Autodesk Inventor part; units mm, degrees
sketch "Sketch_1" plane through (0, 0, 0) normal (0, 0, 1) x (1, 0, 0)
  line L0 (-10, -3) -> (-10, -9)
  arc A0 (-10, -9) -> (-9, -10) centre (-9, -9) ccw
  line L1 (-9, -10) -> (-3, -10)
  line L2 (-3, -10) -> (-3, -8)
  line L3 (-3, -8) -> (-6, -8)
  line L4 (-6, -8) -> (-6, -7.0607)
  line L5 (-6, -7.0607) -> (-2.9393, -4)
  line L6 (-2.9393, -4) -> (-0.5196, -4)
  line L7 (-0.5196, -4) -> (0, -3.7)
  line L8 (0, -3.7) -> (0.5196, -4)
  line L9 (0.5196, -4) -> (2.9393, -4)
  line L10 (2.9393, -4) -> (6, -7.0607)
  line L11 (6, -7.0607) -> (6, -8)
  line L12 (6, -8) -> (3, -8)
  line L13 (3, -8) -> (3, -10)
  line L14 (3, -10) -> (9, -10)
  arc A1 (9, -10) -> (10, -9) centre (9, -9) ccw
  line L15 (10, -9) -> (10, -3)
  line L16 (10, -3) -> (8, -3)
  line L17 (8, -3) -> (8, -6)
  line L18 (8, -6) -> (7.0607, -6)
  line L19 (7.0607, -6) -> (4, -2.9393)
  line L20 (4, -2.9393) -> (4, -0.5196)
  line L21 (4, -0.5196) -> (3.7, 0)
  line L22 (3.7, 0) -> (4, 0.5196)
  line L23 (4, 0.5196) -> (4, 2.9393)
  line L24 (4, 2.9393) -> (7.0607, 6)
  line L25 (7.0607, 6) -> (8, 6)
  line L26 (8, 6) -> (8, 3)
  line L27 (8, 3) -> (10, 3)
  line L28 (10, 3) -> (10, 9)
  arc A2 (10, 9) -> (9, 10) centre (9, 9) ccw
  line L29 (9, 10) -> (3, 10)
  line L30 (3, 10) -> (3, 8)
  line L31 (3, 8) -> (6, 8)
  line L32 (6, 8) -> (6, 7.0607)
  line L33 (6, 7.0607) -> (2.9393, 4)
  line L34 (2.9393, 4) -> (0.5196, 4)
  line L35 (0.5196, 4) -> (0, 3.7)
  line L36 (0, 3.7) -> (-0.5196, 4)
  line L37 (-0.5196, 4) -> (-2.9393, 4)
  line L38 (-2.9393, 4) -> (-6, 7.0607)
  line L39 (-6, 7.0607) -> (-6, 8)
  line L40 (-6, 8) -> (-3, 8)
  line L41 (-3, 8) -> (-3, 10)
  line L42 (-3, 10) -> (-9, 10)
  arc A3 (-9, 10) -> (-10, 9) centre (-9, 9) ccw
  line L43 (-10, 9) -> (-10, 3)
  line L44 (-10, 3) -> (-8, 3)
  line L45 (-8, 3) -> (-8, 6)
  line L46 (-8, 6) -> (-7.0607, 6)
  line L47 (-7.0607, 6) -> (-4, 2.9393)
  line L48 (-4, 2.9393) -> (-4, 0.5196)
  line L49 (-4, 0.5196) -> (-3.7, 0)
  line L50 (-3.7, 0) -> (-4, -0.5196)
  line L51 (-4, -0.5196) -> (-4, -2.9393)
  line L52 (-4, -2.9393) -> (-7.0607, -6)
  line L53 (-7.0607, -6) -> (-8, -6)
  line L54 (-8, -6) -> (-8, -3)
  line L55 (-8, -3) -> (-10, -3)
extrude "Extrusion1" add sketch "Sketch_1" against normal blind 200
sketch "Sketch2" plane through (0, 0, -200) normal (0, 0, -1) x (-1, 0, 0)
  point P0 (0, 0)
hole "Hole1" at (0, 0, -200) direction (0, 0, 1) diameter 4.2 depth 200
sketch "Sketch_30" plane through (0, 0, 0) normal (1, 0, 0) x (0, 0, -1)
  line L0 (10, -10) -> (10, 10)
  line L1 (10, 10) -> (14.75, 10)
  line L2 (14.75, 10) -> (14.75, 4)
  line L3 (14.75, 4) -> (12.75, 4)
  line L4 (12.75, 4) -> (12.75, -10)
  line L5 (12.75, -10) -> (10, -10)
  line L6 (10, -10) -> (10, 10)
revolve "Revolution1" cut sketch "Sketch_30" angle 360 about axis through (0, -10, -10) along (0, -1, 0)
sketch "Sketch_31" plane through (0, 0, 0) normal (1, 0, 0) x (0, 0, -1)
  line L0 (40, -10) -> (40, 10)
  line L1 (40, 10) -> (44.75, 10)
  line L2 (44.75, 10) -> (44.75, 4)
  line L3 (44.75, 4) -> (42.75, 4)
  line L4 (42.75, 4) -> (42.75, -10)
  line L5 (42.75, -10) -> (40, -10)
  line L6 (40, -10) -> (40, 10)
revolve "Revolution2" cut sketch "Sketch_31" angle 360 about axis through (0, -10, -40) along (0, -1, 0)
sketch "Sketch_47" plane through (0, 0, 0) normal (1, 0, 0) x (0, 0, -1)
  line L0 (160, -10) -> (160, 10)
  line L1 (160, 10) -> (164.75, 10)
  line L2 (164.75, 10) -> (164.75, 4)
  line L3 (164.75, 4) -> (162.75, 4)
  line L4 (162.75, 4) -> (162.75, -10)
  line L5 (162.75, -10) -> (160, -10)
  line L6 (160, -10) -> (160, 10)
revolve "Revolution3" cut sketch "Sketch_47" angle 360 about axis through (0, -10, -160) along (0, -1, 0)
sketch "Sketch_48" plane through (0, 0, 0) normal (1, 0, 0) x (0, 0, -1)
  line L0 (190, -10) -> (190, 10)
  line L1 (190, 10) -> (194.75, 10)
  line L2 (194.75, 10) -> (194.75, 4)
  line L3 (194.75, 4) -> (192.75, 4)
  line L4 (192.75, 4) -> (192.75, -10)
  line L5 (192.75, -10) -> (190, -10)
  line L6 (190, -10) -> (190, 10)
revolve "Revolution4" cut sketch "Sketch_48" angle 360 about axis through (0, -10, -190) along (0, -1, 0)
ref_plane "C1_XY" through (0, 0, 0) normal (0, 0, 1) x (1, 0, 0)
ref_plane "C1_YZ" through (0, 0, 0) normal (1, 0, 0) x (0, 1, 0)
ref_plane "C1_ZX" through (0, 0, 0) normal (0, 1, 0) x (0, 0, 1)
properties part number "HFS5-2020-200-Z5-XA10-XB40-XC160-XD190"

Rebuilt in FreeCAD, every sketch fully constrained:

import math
import FreeCAD as App
import Part
import Sketcher
Q = App.Units.Quantity

doc = App.newDocument("Part")
body = doc.addObject("PartDesign::Body", "Body")

# Sketch on XY plane
sketch1 = body.newObject("Sketcher::SketchObject", "Sketch")
sketch1.AttachmentSupport = (doc.getObject("XY_Plane"), [""])
sketch1.MapMode = "FlatFace"
sketch1.addGeometry(Part.LineSegment(App.Vector(-8, -3, 0), App.Vector(-10, -3, 0)), False)
sketch1.addGeometry(Part.LineSegment(App.Vector(-10, -3, 0), App.Vector(-10, -9, 0)), False)
sketch1.addGeometry(Part.ArcOfCircle(Part.Circle(App.Vector(-9, -9, 0), App.Vector(0, 0, 1), 1), math.radians(180), math.radians(270)), False)
sketch1.addGeometry(Part.LineSegment(App.Vector(-9, -10, 0), App.Vector(-3, -10, 0)), False)
sketch1.addGeometry(Part.LineSegment(App.Vector(-3, -10, 0), App.Vector(-3, -8, 0)), False)
sketch1.addGeometry(Part.LineSegment(App.Vector(-3, -8, 0), App.Vector(-6, -8, 0)), False)
sketch1.addGeometry(Part.LineSegment(App.Vector(-6, -8, 0), App.Vector(-6, -7.1, 0)), False)
sketch1.addGeometry(Part.LineSegment(App.Vector(-6, -7.1, 0), App.Vector(-2.9, -4, 0)), False)
sketch1.addGeometry(Part.LineSegment(App.Vector(-2.9, -4, 0), App.Vector(-0.5, -4, 0)), False)
sketch1.addGeometry(Part.LineSegment(App.Vector(-0.5, -4, 0), App.Vector(0, -3.7, 0)), False)
sketch1.addGeometry(Part.LineSegment(App.Vector(0, -3.7, 0), App.Vector(0.5, -4, 0)), False)
sketch1.addGeometry(Part.LineSegment(App.Vector(0.5, -4, 0), App.Vector(2.9, -4, 0)), False)
sketch1.addGeometry(Part.LineSegment(App.Vector(2.9, -4, 0), App.Vector(6, -7.1, 0)), False)
sketch1.addGeometry(Part.LineSegment(App.Vector(6, -7.1, 0), App.Vector(6, -8, 0)), False)
sketch1.addGeometry(Part.LineSegment(App.Vector(6, -8, 0), App.Vector(3, -8, 0)), False)
sketch1.addGeometry(Part.LineSegment(App.Vector(3, -8, 0), App.Vector(3, -10, 0)), False)
sketch1.addGeometry(Part.LineSegment(App.Vector(3, -10, 0), App.Vector(9, -10, 0)), False)
sketch1.addGeometry(Part.ArcOfCircle(Part.Circle(App.Vector(9, -9, 0), App.Vector(0, 0, 1), 1), math.radians(-90), math.radians(0)), False)
sketch1.addGeometry(Part.LineSegment(App.Vector(10, -9, 0), App.Vector(10, -3, 0)), False)
sketch1.addGeometry(Part.LineSegment(App.Vector(10, -3, 0), App.Vector(8, -3, 0)), False)
sketch1.addGeometry(Part.LineSegment(App.Vector(8, -3, 0), App.Vector(8, -6, 0)), False)
sketch1.addGeometry(Part.LineSegment(App.Vector(8, -6, 0), App.Vector(7.1, -6, 0)), False)
sketch1.addGeometry(Part.LineSegment(App.Vector(7.1, -6, 0), App.Vector(4, -2.9, 0)), False)
sketch1.addGeometry(Part.LineSegment(App.Vector(4, -2.9, 0), App.Vector(4, -0.5, 0)), False)
sketch1.addGeometry(Part.LineSegment(App.Vector(4, -0.5, 0), App.Vector(3.7, 0, 0)), False)
sketch1.addGeometry(Part.LineSegment(App.Vector(3.7, 0, 0), App.Vector(4, 0.5, 0)), False)
sketch1.addGeometry(Part.LineSegment(App.Vector(4, 0.5, 0), App.Vector(4, 2.9, 0)), False)
sketch1.addGeometry(Part.LineSegment(App.Vector(4, 2.9, 0), App.Vector(7.1, 6, 0)), False)
sketch1.addGeometry(Part.LineSegment(App.Vector(7.1, 6, 0), App.Vector(8, 6, 0)), False)
sketch1.addGeometry(Part.LineSegment(App.Vector(8, 6, 0), App.Vector(8, 3, 0)), False)
sketch1.addGeometry(Part.LineSegment(App.Vector(8, 3, 0), App.Vector(10, 3, 0)), False)
sketch1.addGeometry(Part.LineSegment(App.Vector(10, 3, 0), App.Vector(10, 9, 0)), False)
sketch1.addGeometry(Part.ArcOfCircle(Part.Circle(App.Vector(9, 9, 0), App.Vector(0, 0, 1), 1), math.radians(0), math.radians(90)), False)
sketch1.addGeometry(Part.LineSegment(App.Vector(9, 10, 0), App.Vector(3, 10, 0)), False)
sketch1.addGeometry(Part.LineSegment(App.Vector(3, 10, 0), App.Vector(3, 8, 0)), False)
sketch1.addGeometry(Part.LineSegment(App.Vector(3, 8, 0), App.Vector(6, 8, 0)), False)
sketch1.addGeometry(Part.LineSegment(App.Vector(6, 8, 0), App.Vector(6, 7.1, 0)), False)
sketch1.addGeometry(Part.LineSegment(App.Vector(6, 7.1, 0), App.Vector(2.9, 4, 0)), False)
sketch1.addGeometry(Part.LineSegment(App.Vector(2.9, 4, 0), App.Vector(0.5, 4, 0)), False)
sketch1.addGeometry(Part.LineSegment(App.Vector(0.5, 4, 0), App.Vector(0, 3.7, 0)), False)
sketch1.addGeometry(Part.LineSegment(App.Vector(0, 3.7, 0), App.Vector(-0.5, 4, 0)), False)
sketch1.addGeometry(Part.LineSegment(App.Vector(-0.5, 4, 0), App.Vector(-2.9, 4, 0)), False)
sketch1.addGeometry(Part.LineSegment(App.Vector(-2.9, 4, 0), App.Vector(-6, 7.1, 0)), False)
sketch1.addGeometry(Part.LineSegment(App.Vector(-6, 7.1, 0), App.Vector(-6, 8, 0)), False)
sketch1.addGeometry(Part.LineSegment(App.Vector(-6, 8, 0), App.Vector(-3, 8, 0)), False)
sketch1.addGeometry(Part.LineSegment(App.Vector(-3, 8, 0), App.Vector(-3, 10, 0)), False)
sketch1.addGeometry(Part.LineSegment(App.Vector(-3, 10, 0), App.Vector(-9, 10, 0)), False)
sketch1.addGeometry(Part.ArcOfCircle(Part.Circle(App.Vector(-9, 9, 0), App.Vector(0, 0, 1), 1), math.radians(90), math.radians(180)), False)
sketch1.addGeometry(Part.LineSegment(App.Vector(-10, 9, 0), App.Vector(-10, 3, 0)), False)
sketch1.addGeometry(Part.LineSegment(App.Vector(-10, 3, 0), App.Vector(-8, 3, 0)), False)
sketch1.addGeometry(Part.LineSegment(App.Vector(-8, 3, 0), App.Vector(-8, 6, 0)), False)
sketch1.addGeometry(Part.LineSegment(App.Vector(-8, 6, 0), App.Vector(-7.1, 6, 0)), False)
sketch1.addGeometry(Part.LineSegment(App.Vector(-7.1, 6, 0), App.Vector(-4, 2.9, 0)), False)
sketch1.addGeometry(Part.LineSegment(App.Vector(-4, 2.9, 0), App.Vector(-4, 0.5, 0)), False)
sketch1.addGeometry(Part.LineSegment(App.Vector(-4, 0.5, 0), App.Vector(-3.7, 0, 0)), False)
sketch1.addGeometry(Part.LineSegment(App.Vector(-3.7, 0, 0), App.Vector(-4, -0.5, 0)), False)
sketch1.addGeometry(Part.LineSegment(App.Vector(-4, -0.5, 0), App.Vector(-4, -2.9, 0)), False)
sketch1.addGeometry(Part.LineSegment(App.Vector(-4, -2.9, 0), App.Vector(-7.1, -6, 0)), False)
sketch1.addGeometry(Part.LineSegment(App.Vector(-7.1, -6, 0), App.Vector(-8, -6, 0)), False)
sketch1.addGeometry(Part.LineSegment(App.Vector(-8, -6, 0), App.Vector(-8, -3, 0)), False)
sketch1.addConstraint(Sketcher.Constraint("Coincident", 0, 2, 1, 1))
sketch1.addConstraint(Sketcher.Constraint("Tangent", 1, 2, 2, 1))
sketch1.addConstraint(Sketcher.Constraint("Tangent", 2, 2, 3, 1))
sketch1.addConstraint(Sketcher.Constraint("Coincident", 3, 2, 4, 1))
sketch1.addConstraint(Sketcher.Constraint("Coincident", 4, 2, 5, 1))
sketch1.addConstraint(Sketcher.Constraint("Coincident", 5, 2, 6, 1))
sketch1.addConstraint(Sketcher.Constraint("Coincident", 6, 2, 7, 1))
sketch1.addConstraint(Sketcher.Constraint("Coincident", 7, 2, 8, 1))
sketch1.addConstraint(Sketcher.Constraint("Coincident", 8, 2, 9, 1))
sketch1.addConstraint(Sketcher.Constraint("Coincident", 9, 2, 10, 1))
sketch1.addConstraint(Sketcher.Constraint("Coincident", 10, 2, 11, 1))
sketch1.addConstraint(Sketcher.Constraint("Coincident", 11, 2, 12, 1))
sketch1.addConstraint(Sketcher.Constraint("Coincident", 12, 2, 13, 1))
sketch1.addConstraint(Sketcher.Constraint("Coincident", 13, 2, 14, 1))
sketch1.addConstraint(Sketcher.Constraint("Coincident", 14, 2, 15, 1))
sketch1.addConstraint(Sketcher.Constraint("Coincident", 15, 2, 16, 1))
sketch1.addConstraint(Sketcher.Constraint("Tangent", 16, 2, 17, 1))
sketch1.addConstraint(Sketcher.Constraint("Tangent", 17, 2, 18, 1))
sketch1.addConstraint(Sketcher.Constraint("Coincident", 18, 2, 19, 1))
sketch1.addConstraint(Sketcher.Constraint("Coincident", 19, 2, 20, 1))
sketch1.addConstraint(Sketcher.Constraint("Coincident", 20, 2, 21, 1))
sketch1.addConstraint(Sketcher.Constraint("Coincident", 21, 2, 22, 1))
sketch1.addConstraint(Sketcher.Constraint("Coincident", 22, 2, 23, 1))
sketch1.addConstraint(Sketcher.Constraint("Coincident", 23, 2, 24, 1))
sketch1.addConstraint(Sketcher.Constraint("Coincident", 24, 2, 25, 1))
sketch1.addConstraint(Sketcher.Constraint("Coincident", 25, 2, 26, 1))
sketch1.addConstraint(Sketcher.Constraint("Coincident", 26, 2, 27, 1))
sketch1.addConstraint(Sketcher.Constraint("Coincident", 27, 2, 28, 1))
sketch1.addConstraint(Sketcher.Constraint("Coincident", 28, 2, 29, 1))
sketch1.addConstraint(Sketcher.Constraint("Coincident", 29, 2, 30, 1))
sketch1.addConstraint(Sketcher.Constraint("Coincident", 30, 2, 31, 1))
sketch1.addConstraint(Sketcher.Constraint("Tangent", 31, 2, 32, 1))
sketch1.addConstraint(Sketcher.Constraint("Tangent", 32, 2, 33, 1))
sketch1.addConstraint(Sketcher.Constraint("Coincident", 33, 2, 34, 1))
sketch1.addConstraint(Sketcher.Constraint("Coincident", 34, 2, 35, 1))
sketch1.addConstraint(Sketcher.Constraint("Coincident", 35, 2, 36, 1))
sketch1.addConstraint(Sketcher.Constraint("Coincident", 36, 2, 37, 1))
sketch1.addConstraint(Sketcher.Constraint("Coincident", 37, 2, 38, 1))
sketch1.addConstraint(Sketcher.Constraint("Coincident", 38, 2, 39, 1))
sketch1.addConstraint(Sketcher.Constraint("Coincident", 39, 2, 40, 1))
sketch1.addConstraint(Sketcher.Constraint("Coincident", 40, 2, 41, 1))
sketch1.addConstraint(Sketcher.Constraint("Coincident", 41, 2, 42, 1))
sketch1.addConstraint(Sketcher.Constraint("Coincident", 42, 2, 43, 1))
sketch1.addConstraint(Sketcher.Constraint("Coincident", 43, 2, 44, 1))
sketch1.addConstraint(Sketcher.Constraint("Coincident", 44, 2, 45, 1))
sketch1.addConstraint(Sketcher.Constraint("Coincident", 45, 2, 46, 1))
sketch1.addConstraint(Sketcher.Constraint("Tangent", 46, 2, 47, 1))
sketch1.addConstraint(Sketcher.Constraint("Tangent", 47, 2, 48, 1))
sketch1.addConstraint(Sketcher.Constraint("Coincident", 48, 2, 49, 1))
sketch1.addConstraint(Sketcher.Constraint("Coincident", 49, 2, 50, 1))
sketch1.addConstraint(Sketcher.Constraint("Coincident", 50, 2, 51, 1))
sketch1.addConstraint(Sketcher.Constraint("Coincident", 51, 2, 52, 1))
sketch1.addConstraint(Sketcher.Constraint("Coincident", 52, 2, 53, 1))
sketch1.addConstraint(Sketcher.Constraint("Coincident", 53, 2, 54, 1))
sketch1.addConstraint(Sketcher.Constraint("Coincident", 54, 2, 55, 1))
sketch1.addConstraint(Sketcher.Constraint("Coincident", 55, 2, 56, 1))
sketch1.addConstraint(Sketcher.Constraint("Coincident", 56, 2, 57, 1))
sketch1.addConstraint(Sketcher.Constraint("Coincident", 57, 2, 58, 1))
sketch1.addConstraint(Sketcher.Constraint("Coincident", 58, 2, 59, 1))
sketch1.addConstraint(Sketcher.Constraint("Coincident", 59, 2, 0, 1))
sketch1.addConstraint(Sketcher.Constraint("Horizontal", 0))
sketch1.addConstraint(Sketcher.Constraint("Vertical", 1))
sketch1.addConstraint(Sketcher.Constraint("Horizontal", 3))
sketch1.addConstraint(Sketcher.Constraint("Vertical", 4))
sketch1.addConstraint(Sketcher.Constraint("Horizontal", 5))
sketch1.addConstraint(Sketcher.Constraint("Vertical", 6))
sketch1.addConstraint(Sketcher.Constraint("Horizontal", 8))
sketch1.addConstraint(Sketcher.Constraint("Horizontal", 11))
sketch1.addConstraint(Sketcher.Constraint("Vertical", 13))
sketch1.addConstraint(Sketcher.Constraint("Horizontal", 14))
sketch1.addConstraint(Sketcher.Constraint("Vertical", 15))
sketch1.addConstraint(Sketcher.Constraint("Horizontal", 16))
sketch1.addConstraint(Sketcher.Constraint("Vertical", 18))
sketch1.addConstraint(Sketcher.Constraint("Horizontal", 19))
sketch1.addConstraint(Sketcher.Constraint("Vertical", 20))
sketch1.addConstraint(Sketcher.Constraint("Horizontal", 21))
sketch1.addConstraint(Sketcher.Constraint("Vertical", 23))
sketch1.addConstraint(Sketcher.Constraint("Vertical", 26))
sketch1.addConstraint(Sketcher.Constraint("Horizontal", 28))
sketch1.addConstraint(Sketcher.Constraint("Vertical", 29))
sketch1.addConstraint(Sketcher.Constraint("Horizontal", 30))
sketch1.addConstraint(Sketcher.Constraint("Vertical", 31))
sketch1.addConstraint(Sketcher.Constraint("Horizontal", 33))
sketch1.addConstraint(Sketcher.Constraint("Vertical", 34))
sketch1.addConstraint(Sketcher.Constraint("Horizontal", 35))
sketch1.addConstraint(Sketcher.Constraint("Vertical", 36))
sketch1.addConstraint(Sketcher.Constraint("Horizontal", 38))
sketch1.addConstraint(Sketcher.Constraint("Horizontal", 41))
sketch1.addConstraint(Sketcher.Constraint("Vertical", 43))
sketch1.addConstraint(Sketcher.Constraint("Horizontal", 44))
sketch1.addConstraint(Sketcher.Constraint("Vertical", 45))
sketch1.addConstraint(Sketcher.Constraint("Horizontal", 46))
sketch1.addConstraint(Sketcher.Constraint("Vertical", 48))
sketch1.addConstraint(Sketcher.Constraint("Horizontal", 49))
sketch1.addConstraint(Sketcher.Constraint("Vertical", 50))
sketch1.addConstraint(Sketcher.Constraint("Horizontal", 51))
sketch1.addConstraint(Sketcher.Constraint("Vertical", 53))
sketch1.addConstraint(Sketcher.Constraint("Vertical", 56))
sketch1.addConstraint(Sketcher.Constraint("Horizontal", 58))
sketch1.addConstraint(Sketcher.Constraint("Vertical", 59))
sketch1.addConstraint(Sketcher.Constraint("Equal", 2, 17))
sketch1.addConstraint(Sketcher.Constraint("Equal", 17, 32))
sketch1.addConstraint(Sketcher.Constraint("Equal", 32, 47))
sketch1.addConstraint(Sketcher.Constraint("Symmetric", 2, 3, 32, 3, -1, 1))
sketch1.addConstraint(Sketcher.Constraint("Symmetric", 17, 3, 47, 3, -1, 1))
sketch1.addConstraint(Sketcher.Constraint("Symmetric", 4, 2, 34, 2, -1, 1))
sketch1.addConstraint(Sketcher.Constraint("Symmetric", 6, 2, 36, 2, -1, 1))
sketch1.addConstraint(Sketcher.Constraint("Symmetric", 7, 2, 37, 2, -1, 1))
sketch1.addConstraint(Sketcher.Constraint("Symmetric", 9, 2, 39, 2, -1, 1))
sketch1.addConstraint(Sketcher.Constraint("Symmetric", 10, 2, 40, 2, -1, 1))
sketch1.addConstraint(Sketcher.Constraint("Symmetric", 12, 2, 42, 2, -1, 1))
sketch1.addConstraint(Sketcher.Constraint("Symmetric", 14, 2, 44, 2, -1, 1))
sketch1.addConstraint(Sketcher.Constraint("Symmetric", 19, 2, 49, 2, -1, 1))
sketch1.addConstraint(Sketcher.Constraint("Symmetric", 21, 2, 51, 2, -1, 1))
sketch1.addConstraint(Sketcher.Constraint("Symmetric", 22, 2, 52, 2, -1, 1))
sketch1.addConstraint(Sketcher.Constraint("Symmetric", 24, 2, 54, 2, -1, 1))
sketch1.addConstraint(Sketcher.Constraint("Symmetric", 25, 2, 55, 2, -1, 1))
sketch1.addConstraint(Sketcher.Constraint("Symmetric", 27, 2, 57, 2, -1, 1))
sketch1.addConstraint(Sketcher.Constraint("Symmetric", 29, 2, 59, 2, -1, 1))
sketch1.addConstraint(Sketcher.Constraint("Symmetric", 2, 3, 17, 3, -2))
sketch1.addConstraint(Sketcher.Constraint("Symmetric", 8, 2, 10, 2, -2))
sketch1.addConstraint(Sketcher.Constraint("Symmetric", 6, 2, 12, 2, -2))
sketch1.addConstraint(Sketcher.Constraint("Symmetric", 4, 2, 14, 2, -2))
sketch1.addConstraint(Sketcher.Constraint("Symmetric", 29, 2, 49, 2, -2))
sketch1.addConstraint(Sketcher.Constraint("Symmetric", 27, 2, 51, 2, -2))
sketch1.addConstraint(Sketcher.Constraint("Symmetric", 26, 2, 52, 2, -2))
sketch1.addConstraint(Sketcher.Constraint("PointOnObject", 9, 2, -2))
sketch1.addConstraint(Sketcher.Constraint("PointOnObject", 24, 2, -1))
sketch1.addConstraint(Sketcher.Constraint("Perpendicular", 7, 12))
sketch1.addConstraint(Sketcher.Constraint("Parallel", 12, 22))
sketch1.addConstraint(Sketcher.Constraint("Perpendicular", 9, 24))
sketch1.addConstraint(Sketcher.Constraint("Perpendicular", 10, 25))
sketch1.addConstraint(Sketcher.Constraint("Perpendicular", 22, 27))
sketch1.addConstraint(Sketcher.Constraint("Perpendicular", 24, 39))
sketch1.addConstraint(Sketcher.Constraint("Perpendicular", 37, 42))
sketch1.addConstraint(Sketcher.Constraint("Perpendicular", 39, 54))
sketch1.addConstraint(Sketcher.Constraint("Perpendicular", 52, 57))
sketch1.addConstraint(Sketcher.Constraint("Equal", 46, 1))
sketch1.addConstraint(Sketcher.Constraint("Equal", 49, 4))
sketch1.addConstraint(Sketcher.Constraint("Equal", 58, 6))
sketch1.addConstraint(Sketcher.Constraint("Equal", 44, 20))
sketch1.addConstraint(Sketcher.Constraint("Equal", 41, 23))
sketch1.addConstraint(Sketcher.Constraint("Equal", 12, 22))
sketch1.addConstraint(Sketcher.Constraint("Equal", 10, 24))
sketch1.addConstraint(Sketcher.Constraint("Radius", 2, Q("1 mm")))
sketch1.addConstraint(Sketcher.Constraint("DistanceX", 0, 2, 0, 1, Q("2 mm")))
sketch1.addConstraint(Sketcher.Constraint("DistanceX", 3, 1, 3, 2, Q("6 mm")))
sketch1.addConstraint(Sketcher.Constraint("DistanceX", 5, 2, 5, 1, Q("3 mm")))
sketch1.addConstraint(Sketcher.Constraint("Angle", 9, Q("30.0007 deg")))
sketch1.addConstraint(Sketcher.Constraint("DistanceX", 2, 3, -1, 1, Q("9 mm")))
sketch1.addConstraint(Sketcher.Constraint("DistanceY", 7, 2, -1, 1, Q("4 mm")))
sketch1.addConstraint(Sketcher.Constraint("Distance", 9, Q("0.6 mm")))
sketch1.addConstraint(Sketcher.Constraint("DistanceX", 8, 1, 8, 2, Q("2.4197 mm")))
pad1 = body.newObject("PartDesign::Pad", "Pad")
pad1.Profile = sketch1
pad1.Length = 200
pad1.Reversed = True

# Sketch on XY plane
sketch2 = body.newObject("Sketcher::SketchObject", "Sketch001")
sketch2.AttachmentSupport = (doc.getObject("XY_Plane"), [""])
sketch2.MapMode = "FlatFace"
sketch2.AttachmentOffset = App.Placement(App.Vector(0, 0, -200), App.Rotation())
sketch2.addGeometry(Part.Circle(App.Vector(0, 0, 0), App.Vector(0, 0, 1), 2.1), False)
sketch2.addConstraint(Sketcher.Constraint("Coincident", 0, 3, -1, 1))
sketch2.addConstraint(Sketcher.Constraint("Diameter", 0, Q("4.2 mm")))
doc.recompute()
hole = body.newObject("PartDesign::Hole", "Hole")
hole.Profile = sketch2
hole.ThreadType = "None"
hole.Diameter = 4.2
hole.DepthType = "Dimension"
hole.Depth = 200
hole.DrillPoint = "Flat"
hole.Reversed = True

# Sketch on YZ plane
sketch3 = body.newObject("Sketcher::SketchObject", "Sketch002")
sketch3.AttachmentSupport = (doc.getObject("YZ_Plane"), [""])
sketch3.MapMode = "FlatFace"
sketch3.addGeometry(Part.LineSegment(App.Vector(10, -10, 0), App.Vector(-10, -10, 0)), False)
sketch3.addGeometry(Part.LineSegment(App.Vector(-10, -10, 0), App.Vector(-10, -12.8, 0)), False)
sketch3.addGeometry(Part.LineSegment(App.Vector(-10, -12.8, 0), App.Vector(4, -12.8, 0)), False)
sketch3.addGeometry(Part.LineSegment(App.Vector(4, -12.8, 0), App.Vector(4, -14.8, 0)), False)
sketch3.addGeometry(Part.LineSegment(App.Vector(4, -14.8, 0), App.Vector(10, -14.8, 0)), False)
sketch3.addGeometry(Part.LineSegment(App.Vector(10, -14.8, 0), App.Vector(10, -10, 0)), False)
sketch3.addGeometry(Part.LineSegment(App.Vector(10, -10, 0), App.Vector(-10, -10, 0)), True)  # axis
sketch3.addConstraint(Sketcher.Constraint("Coincident", 0, 2, 1, 1))
sketch3.addConstraint(Sketcher.Constraint("Coincident", 1, 2, 2, 1))
sketch3.addConstraint(Sketcher.Constraint("Coincident", 2, 2, 3, 1))
sketch3.addConstraint(Sketcher.Constraint("Coincident", 3, 2, 4, 1))
sketch3.addConstraint(Sketcher.Constraint("Coincident", 4, 2, 5, 1))
sketch3.addConstraint(Sketcher.Constraint("Coincident", 5, 2, 0, 1))
sketch3.addConstraint(Sketcher.Constraint("Horizontal", 0))
sketch3.addConstraint(Sketcher.Constraint("Vertical", 1))
sketch3.addConstraint(Sketcher.Constraint("Horizontal", 2))
sketch3.addConstraint(Sketcher.Constraint("Vertical", 3))
sketch3.addConstraint(Sketcher.Constraint("Horizontal", 4))
sketch3.addConstraint(Sketcher.Constraint("Vertical", 5))
sketch3.addConstraint(Sketcher.Constraint("Horizontal", 6))
sketch3.addConstraint(Sketcher.Constraint("Coincident", 6, 1, 5, 2))
sketch3.addConstraint(Sketcher.Constraint("Vertical", 1, 2, 6, 2))
sketch3.addConstraint(Sketcher.Constraint("DistanceX", 0, 2, 0, 1, Q("20 mm")))
sketch3.addConstraint(Sketcher.Constraint("DistanceX", 2, 1, 2, 2, Q("14 mm")))
sketch3.addConstraint(Sketcher.Constraint("DistanceY", 3, 2, 3, 1, Q("2 mm")))
sketch3.addConstraint(Sketcher.Constraint("DistanceX", 0, 2, -1, 1, Q("10 mm")))
sketch3.addConstraint(Sketcher.Constraint("DistanceY", 0, 2, -1, 1, Q("10 mm")))
sketch3.addConstraint(Sketcher.Constraint("DistanceY", 1, 2, 1, 1, Q("2.75 mm")))
groove = body.newObject("PartDesign::Groove", "Groove")
groove.Profile = sketch3
groove.ReferenceAxis = (sketch3, ["Axis0"])
groove.Angle = 360

# Sketch on YZ plane
sketch4 = body.newObject("Sketcher::SketchObject", "Sketch003")
sketch4.AttachmentSupport = (doc.getObject("YZ_Plane"), [""])
sketch4.MapMode = "FlatFace"
sketch4.addGeometry(Part.LineSegment(App.Vector(10, -40, 0), App.Vector(-10, -40, 0)), False)
sketch4.addGeometry(Part.LineSegment(App.Vector(-10, -40, 0), App.Vector(-10, -42.8, 0)), False)
sketch4.addGeometry(Part.LineSegment(App.Vector(-10, -42.8, 0), App.Vector(4, -42.8, 0)), False)
sketch4.addGeometry(Part.LineSegment(App.Vector(4, -42.8, 0), App.Vector(4, -44.8, 0)), False)
sketch4.addGeometry(Part.LineSegment(App.Vector(4, -44.8, 0), App.Vector(10, -44.8, 0)), False)
sketch4.addGeometry(Part.LineSegment(App.Vector(10, -44.8, 0), App.Vector(10, -40, 0)), False)
sketch4.addGeometry(Part.LineSegment(App.Vector(10, -40, 0), App.Vector(-10, -40, 0)), True)  # axis
sketch4.addConstraint(Sketcher.Constraint("Coincident", 0, 2, 1, 1))
sketch4.addConstraint(Sketcher.Constraint("Coincident", 1, 2, 2, 1))
sketch4.addConstraint(Sketcher.Constraint("Coincident", 2, 2, 3, 1))
sketch4.addConstraint(Sketcher.Constraint("Coincident", 3, 2, 4, 1))
sketch4.addConstraint(Sketcher.Constraint("Coincident", 4, 2, 5, 1))
sketch4.addConstraint(Sketcher.Constraint("Coincident", 5, 2, 0, 1))
sketch4.addConstraint(Sketcher.Constraint("Horizontal", 0))
sketch4.addConstraint(Sketcher.Constraint("Vertical", 1))
sketch4.addConstraint(Sketcher.Constraint("Horizontal", 2))
sketch4.addConstraint(Sketcher.Constraint("Vertical", 3))
sketch4.addConstraint(Sketcher.Constraint("Horizontal", 4))
sketch4.addConstraint(Sketcher.Constraint("Vertical", 5))
sketch4.addConstraint(Sketcher.Constraint("Horizontal", 6))
sketch4.addConstraint(Sketcher.Constraint("Coincident", 6, 1, 5, 2))
sketch4.addConstraint(Sketcher.Constraint("Vertical", 1, 2, 6, 2))
sketch4.addConstraint(Sketcher.Constraint("DistanceX", 0, 2, 0, 1, Q("20 mm")))
sketch4.addConstraint(Sketcher.Constraint("DistanceX", 2, 1, 2, 2, Q("14 mm")))
sketch4.addConstraint(Sketcher.Constraint("DistanceY", 3, 2, 3, 1, Q("2 mm")))
sketch4.addConstraint(Sketcher.Constraint("DistanceX", 0, 2, -1, 1, Q("10 mm")))
sketch4.addConstraint(Sketcher.Constraint("DistanceY", 0, 2, -1, 1, Q("40 mm")))
sketch4.addConstraint(Sketcher.Constraint("DistanceY", 1, 2, 1, 1, Q("2.75 mm")))
groove2 = body.newObject("PartDesign::Groove", "Groove001")
groove2.Profile = sketch4
groove2.ReferenceAxis = (sketch4, ["Axis0"])
groove2.Angle = 360

# Sketch on YZ plane
sketch5 = body.newObject("Sketcher::SketchObject", "Sketch004")
sketch5.AttachmentSupport = (doc.getObject("YZ_Plane"), [""])
sketch5.MapMode = "FlatFace"
sketch5.addGeometry(Part.LineSegment(App.Vector(10, -160, 0), App.Vector(-10, -160, 0)), False)
sketch5.addGeometry(Part.LineSegment(App.Vector(-10, -160, 0), App.Vector(-10, -162.8, 0)), False)
sketch5.addGeometry(Part.LineSegment(App.Vector(-10, -162.8, 0), App.Vector(4, -162.8, 0)), False)
sketch5.addGeometry(Part.LineSegment(App.Vector(4, -162.8, 0), App.Vector(4, -164.8, 0)), False)
sketch5.addGeometry(Part.LineSegment(App.Vector(4, -164.8, 0), App.Vector(10, -164.8, 0)), False)
sketch5.addGeometry(Part.LineSegment(App.Vector(10, -164.8, 0), App.Vector(10, -160, 0)), False)
sketch5.addGeometry(Part.LineSegment(App.Vector(10, -160, 0), App.Vector(-10, -160, 0)), True)  # axis
sketch5.addConstraint(Sketcher.Constraint("Coincident", 0, 2, 1, 1))
sketch5.addConstraint(Sketcher.Constraint("Coincident", 1, 2, 2, 1))
sketch5.addConstraint(Sketcher.Constraint("Coincident", 2, 2, 3, 1))
sketch5.addConstraint(Sketcher.Constraint("Coincident", 3, 2, 4, 1))
sketch5.addConstraint(Sketcher.Constraint("Coincident", 4, 2, 5, 1))
sketch5.addConstraint(Sketcher.Constraint("Coincident", 5, 2, 0, 1))
sketch5.addConstraint(Sketcher.Constraint("Horizontal", 0))
sketch5.addConstraint(Sketcher.Constraint("Vertical", 1))
sketch5.addConstraint(Sketcher.Constraint("Horizontal", 2))
sketch5.addConstraint(Sketcher.Constraint("Vertical", 3))
sketch5.addConstraint(Sketcher.Constraint("Horizontal", 4))
sketch5.addConstraint(Sketcher.Constraint("Vertical", 5))
sketch5.addConstraint(Sketcher.Constraint("Horizontal", 6))
sketch5.addConstraint(Sketcher.Constraint("Coincident", 6, 1, 5, 2))
sketch5.addConstraint(Sketcher.Constraint("Vertical", 1, 2, 6, 2))
sketch5.addConstraint(Sketcher.Constraint("DistanceX", 0, 2, 0, 1, Q("20 mm")))
sketch5.addConstraint(Sketcher.Constraint("DistanceX", 2, 1, 2, 2, Q("14 mm")))
sketch5.addConstraint(Sketcher.Constraint("DistanceY", 3, 2, 3, 1, Q("2 mm")))
sketch5.addConstraint(Sketcher.Constraint("DistanceX", 0, 2, -1, 1, Q("10 mm")))
sketch5.addConstraint(Sketcher.Constraint("DistanceY", 0, 2, -1, 1, Q("160 mm")))
sketch5.addConstraint(Sketcher.Constraint("DistanceY", 1, 2, 1, 1, Q("2.75 mm")))
groove3 = body.newObject("PartDesign::Groove", "Groove002")
groove3.Profile = sketch5
groove3.ReferenceAxis = (sketch5, ["Axis0"])
groove3.Angle = 360

# Sketch on YZ plane
sketch6 = body.newObject("Sketcher::SketchObject", "Sketch005")
sketch6.AttachmentSupport = (doc.getObject("YZ_Plane"), [""])
sketch6.MapMode = "FlatFace"
sketch6.addGeometry(Part.LineSegment(App.Vector(10, -190, 0), App.Vector(-10, -190, 0)), False)
sketch6.addGeometry(Part.LineSegment(App.Vector(-10, -190, 0), App.Vector(-10, -192.8, 0)), False)
sketch6.addGeometry(Part.LineSegment(App.Vector(-10, -192.8, 0), App.Vector(4, -192.8, 0)), False)
sketch6.addGeometry(Part.LineSegment(App.Vector(4, -192.8, 0), App.Vector(4, -194.8, 0)), False)
sketch6.addGeometry(Part.LineSegment(App.Vector(4, -194.8, 0), App.Vector(10, -194.8, 0)), False)
sketch6.addGeometry(Part.LineSegment(App.Vector(10, -194.8, 0), App.Vector(10, -190, 0)), False)
sketch6.addGeometry(Part.LineSegment(App.Vector(10, -190, 0), App.Vector(-10, -190, 0)), True)  # axis
sketch6.addConstraint(Sketcher.Constraint("Coincident", 0, 2, 1, 1))
sketch6.addConstraint(Sketcher.Constraint("Coincident", 1, 2, 2, 1))
sketch6.addConstraint(Sketcher.Constraint("Coincident", 2, 2, 3, 1))
sketch6.addConstraint(Sketcher.Constraint("Coincident", 3, 2, 4, 1))
sketch6.addConstraint(Sketcher.Constraint("Coincident", 4, 2, 5, 1))
sketch6.addConstraint(Sketcher.Constraint("Coincident", 5, 2, 0, 1))
sketch6.addConstraint(Sketcher.Constraint("Horizontal", 0))
sketch6.addConstraint(Sketcher.Constraint("Vertical", 1))
sketch6.addConstraint(Sketcher.Constraint("Horizontal", 2))
sketch6.addConstraint(Sketcher.Constraint("Vertical", 3))
sketch6.addConstraint(Sketcher.Constraint("Horizontal", 4))
sketch6.addConstraint(Sketcher.Constraint("Vertical", 5))
sketch6.addConstraint(Sketcher.Constraint("Horizontal", 6))
sketch6.addConstraint(Sketcher.Constraint("Coincident", 6, 1, 5, 2))
sketch6.addConstraint(Sketcher.Constraint("Vertical", 1, 2, 6, 2))
sketch6.addConstraint(Sketcher.Constraint("DistanceX", 0, 2, 0, 1, Q("20 mm")))
sketch6.addConstraint(Sketcher.Constraint("DistanceX", 2, 1, 2, 2, Q("14 mm")))
sketch6.addConstraint(Sketcher.Constraint("DistanceY", 3, 2, 3, 1, Q("2 mm")))
sketch6.addConstraint(Sketcher.Constraint("DistanceX", 0, 2, -1, 1, Q("10 mm")))
sketch6.addConstraint(Sketcher.Constraint("DistanceY", 0, 2, -1, 1, Q("190 mm")))
sketch6.addConstraint(Sketcher.Constraint("DistanceY", 1, 2, 1, 1, Q("2.75 mm")))
groove4 = body.newObject("PartDesign::Groove", "Groove003")
groove4.Profile = sketch6
groove4.ReferenceAxis = (sketch6, ["Axis0"])
groove4.Angle = 360

doc.recompute()
